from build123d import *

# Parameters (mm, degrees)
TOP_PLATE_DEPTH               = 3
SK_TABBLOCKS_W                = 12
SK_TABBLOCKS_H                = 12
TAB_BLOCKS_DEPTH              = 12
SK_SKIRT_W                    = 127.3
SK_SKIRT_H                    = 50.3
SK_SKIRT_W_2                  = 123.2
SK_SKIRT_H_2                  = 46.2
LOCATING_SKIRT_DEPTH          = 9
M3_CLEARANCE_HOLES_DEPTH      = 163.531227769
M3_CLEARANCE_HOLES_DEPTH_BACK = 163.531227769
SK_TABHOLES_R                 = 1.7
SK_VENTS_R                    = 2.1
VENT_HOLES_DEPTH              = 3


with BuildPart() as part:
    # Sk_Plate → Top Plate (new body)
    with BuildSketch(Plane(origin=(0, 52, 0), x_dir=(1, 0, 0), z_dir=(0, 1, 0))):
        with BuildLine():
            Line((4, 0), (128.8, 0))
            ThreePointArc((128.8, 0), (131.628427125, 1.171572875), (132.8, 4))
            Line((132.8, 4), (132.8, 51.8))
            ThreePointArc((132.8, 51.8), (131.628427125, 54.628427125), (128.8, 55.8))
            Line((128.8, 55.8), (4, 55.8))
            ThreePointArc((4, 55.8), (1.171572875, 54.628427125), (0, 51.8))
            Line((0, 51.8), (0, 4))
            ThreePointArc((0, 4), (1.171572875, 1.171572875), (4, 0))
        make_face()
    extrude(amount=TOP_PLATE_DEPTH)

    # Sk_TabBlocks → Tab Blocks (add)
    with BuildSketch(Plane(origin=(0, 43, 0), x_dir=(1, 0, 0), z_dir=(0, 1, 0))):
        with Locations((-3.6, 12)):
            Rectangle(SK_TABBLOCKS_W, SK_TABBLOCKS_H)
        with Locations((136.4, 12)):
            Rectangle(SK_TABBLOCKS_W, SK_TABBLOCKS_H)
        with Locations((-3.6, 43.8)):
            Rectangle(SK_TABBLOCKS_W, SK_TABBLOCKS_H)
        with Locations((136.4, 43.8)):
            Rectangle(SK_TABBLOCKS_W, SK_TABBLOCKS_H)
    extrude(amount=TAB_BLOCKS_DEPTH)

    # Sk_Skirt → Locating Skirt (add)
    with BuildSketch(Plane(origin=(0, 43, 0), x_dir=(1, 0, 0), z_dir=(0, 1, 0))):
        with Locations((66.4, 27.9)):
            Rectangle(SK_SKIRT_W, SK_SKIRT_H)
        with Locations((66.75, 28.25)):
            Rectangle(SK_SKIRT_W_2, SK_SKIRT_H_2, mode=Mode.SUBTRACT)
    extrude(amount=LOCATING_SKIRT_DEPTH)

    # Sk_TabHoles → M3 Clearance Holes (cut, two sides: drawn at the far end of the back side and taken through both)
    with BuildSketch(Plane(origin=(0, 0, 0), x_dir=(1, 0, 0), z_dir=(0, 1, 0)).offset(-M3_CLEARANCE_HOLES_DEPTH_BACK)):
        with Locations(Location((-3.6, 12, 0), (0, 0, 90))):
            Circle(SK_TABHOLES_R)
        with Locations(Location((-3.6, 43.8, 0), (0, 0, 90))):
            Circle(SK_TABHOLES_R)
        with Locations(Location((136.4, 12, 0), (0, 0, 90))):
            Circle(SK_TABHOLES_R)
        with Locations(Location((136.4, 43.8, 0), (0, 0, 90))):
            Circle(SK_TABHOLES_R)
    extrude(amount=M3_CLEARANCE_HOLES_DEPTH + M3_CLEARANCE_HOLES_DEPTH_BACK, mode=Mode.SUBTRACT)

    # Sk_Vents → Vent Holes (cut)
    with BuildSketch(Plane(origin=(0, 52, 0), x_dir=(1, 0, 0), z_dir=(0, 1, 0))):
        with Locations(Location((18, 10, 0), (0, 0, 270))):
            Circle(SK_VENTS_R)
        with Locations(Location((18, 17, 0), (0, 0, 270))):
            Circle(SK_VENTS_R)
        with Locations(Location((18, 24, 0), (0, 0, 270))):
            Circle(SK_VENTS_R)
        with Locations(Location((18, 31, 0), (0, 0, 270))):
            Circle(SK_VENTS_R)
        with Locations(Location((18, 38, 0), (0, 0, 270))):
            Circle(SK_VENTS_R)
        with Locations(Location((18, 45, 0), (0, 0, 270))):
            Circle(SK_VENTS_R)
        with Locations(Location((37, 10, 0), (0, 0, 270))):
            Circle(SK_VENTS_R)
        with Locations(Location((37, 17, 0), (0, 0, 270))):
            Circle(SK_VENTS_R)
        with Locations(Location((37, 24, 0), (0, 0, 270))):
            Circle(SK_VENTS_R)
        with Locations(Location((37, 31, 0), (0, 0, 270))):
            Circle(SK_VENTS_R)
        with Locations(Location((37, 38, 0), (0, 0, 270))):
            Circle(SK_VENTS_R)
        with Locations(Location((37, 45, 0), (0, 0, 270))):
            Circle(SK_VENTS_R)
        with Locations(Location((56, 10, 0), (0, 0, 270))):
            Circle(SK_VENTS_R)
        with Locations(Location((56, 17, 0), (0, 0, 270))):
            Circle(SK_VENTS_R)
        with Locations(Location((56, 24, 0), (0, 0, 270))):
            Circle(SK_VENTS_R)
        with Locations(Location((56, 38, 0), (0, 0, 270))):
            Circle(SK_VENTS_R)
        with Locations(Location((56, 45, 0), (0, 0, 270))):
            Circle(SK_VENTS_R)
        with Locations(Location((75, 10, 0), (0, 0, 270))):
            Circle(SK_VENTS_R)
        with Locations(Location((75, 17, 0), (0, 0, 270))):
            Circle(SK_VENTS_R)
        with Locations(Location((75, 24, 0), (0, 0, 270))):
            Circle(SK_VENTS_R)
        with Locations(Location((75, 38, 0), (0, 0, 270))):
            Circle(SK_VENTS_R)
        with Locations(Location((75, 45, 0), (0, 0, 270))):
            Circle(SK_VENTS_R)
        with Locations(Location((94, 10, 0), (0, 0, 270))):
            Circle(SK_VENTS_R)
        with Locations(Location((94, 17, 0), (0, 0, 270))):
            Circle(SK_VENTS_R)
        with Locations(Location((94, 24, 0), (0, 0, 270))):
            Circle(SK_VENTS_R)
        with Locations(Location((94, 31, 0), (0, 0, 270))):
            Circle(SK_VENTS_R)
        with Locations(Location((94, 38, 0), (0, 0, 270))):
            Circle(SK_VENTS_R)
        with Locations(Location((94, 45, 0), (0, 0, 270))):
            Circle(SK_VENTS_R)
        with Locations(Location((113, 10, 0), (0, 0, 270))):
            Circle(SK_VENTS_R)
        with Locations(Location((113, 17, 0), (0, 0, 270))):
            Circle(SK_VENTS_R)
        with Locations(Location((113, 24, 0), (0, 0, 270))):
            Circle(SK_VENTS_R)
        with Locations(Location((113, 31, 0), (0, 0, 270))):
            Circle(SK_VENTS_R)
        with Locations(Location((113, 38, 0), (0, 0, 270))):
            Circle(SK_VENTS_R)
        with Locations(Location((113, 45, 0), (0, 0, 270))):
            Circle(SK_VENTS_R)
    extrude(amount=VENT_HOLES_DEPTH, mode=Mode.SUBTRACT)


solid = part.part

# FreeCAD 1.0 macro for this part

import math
import FreeCAD as App
import Part
import Sketcher
Q = App.Units.Quantity

doc = App.newDocument("Part")
params = doc.addObject("Spreadsheet::Sheet", "Params")
for row, (alias, value) in enumerate([
    ("sketch1_radius", "4 mm"),
    ("sketch1_width", "124.8 mm"),
    ("sketch1_height", "47.8 mm"),
    ("pad1_length", "3 mm"),
    ("sketch2_width", "12 mm"),
    ("pad2_length", "12 mm"),
    ("sketch3_width", "127.3 mm"),
    ("sketch3_width2", "123.2 mm"),
    ("sketch3_height", "50.3 mm"),
    ("sketch3_height2", "46.2 mm"),
    ("pad3_length", "9 mm"),
    ("sketch4_diameter", "3.4 mm"),
    ("sketch5_diameter", "4.2 mm"),
    ("pocket2_length", "3 mm"),
], start=1):
    params.set(f"A{row}", alias)
    params.set(f"B{row}", "=" + value)
    params.setAlias(f"B{row}", alias)

body = doc.addObject("PartDesign::Body", "Body")

# Sketch on XZ plane
sketch1 = body.newObject("Sketcher::SketchObject", "Sketch")
sketch1.AttachmentSupport = (doc.getObject("XZ_Plane"), [""])
sketch1.MapMode = "FlatFace"
sketch1.AttachmentOffset = App.Placement(App.Vector(0, 0, -52), App.Rotation())
sketch1.addGeometry([
    Part.LineSegment(App.Vector(4, 0, 0), App.Vector(128.8, 0, 0)),  # 0
    Part.ArcOfCircle(Part.Circle(App.Vector(128.8, -4, 0), App.Vector(0, 0, 1), 4), math.radians(0), math.radians(90)),  # 1
    Part.LineSegment(App.Vector(132.8, -4, 0), App.Vector(132.8, -51.8, 0)),  # 2
    Part.ArcOfCircle(Part.Circle(App.Vector(128.8, -51.8, 0), App.Vector(0, 0, 1), 4), math.radians(-90), math.radians(0)),  # 3
    Part.LineSegment(App.Vector(128.8, -55.8, 0), App.Vector(4, -55.8, 0)),  # 4
    Part.ArcOfCircle(Part.Circle(App.Vector(4, -51.8, 0), App.Vector(0, 0, 1), 4), math.radians(180), math.radians(270)),  # 5
    Part.LineSegment(App.Vector(0, -51.8, 0), App.Vector(0, -4, 0)),  # 6
    Part.ArcOfCircle(Part.Circle(App.Vector(4, -4, 0), App.Vector(0, 0, 1), 4), math.radians(90), math.radians(180)),  # 7
], False)
sketch1.addConstraint([
    Sketcher.Constraint("Tangent", 0, 2, 1, 2),
    Sketcher.Constraint("Tangent", 1, 1, 2, 1),
    Sketcher.Constraint("Tangent", 2, 2, 3, 2),
    Sketcher.Constraint("Tangent", 3, 1, 4, 1),
    Sketcher.Constraint("Tangent", 4, 2, 5, 2),
    Sketcher.Constraint("Tangent", 5, 1, 6, 1),
    Sketcher.Constraint("Tangent", 6, 2, 7, 2),
    Sketcher.Constraint("Tangent", 7, 1, 0, 1),
    Sketcher.Constraint("Horizontal", 0),
    Sketcher.Constraint("Vertical", 2),
    Sketcher.Constraint("Horizontal", 4),
    Sketcher.Constraint("Vertical", 6),
    Sketcher.Constraint("Equal", 1, 3),
    Sketcher.Constraint("Equal", 3, 5),
    Sketcher.Constraint("Equal", 5, 7),
    Sketcher.Constraint("PointOnObject", 0, 2, -1),
    Sketcher.Constraint("PointOnObject", 5, 1, -2),
    Sketcher.Constraint("Radius", 1, Q("4 mm")),
    Sketcher.Constraint("DistanceX", 0, 1, 0, 2, Q("124.8 mm")),
    Sketcher.Constraint("DistanceY", 2, 2, 2, 1, Q("47.8 mm")),
])
sketch1.setExpression("Constraints[17]", "Params.sketch1_radius")
sketch1.setExpression("Constraints[18]", "Params.sketch1_width")
sketch1.setExpression("Constraints[19]", "Params.sketch1_height")
pad1 = body.newObject("PartDesign::Pad", "Pad")
pad1.Profile = sketch1
pad1.setExpression("Length", "Params.pad1_length")
pad1.Reversed = True

# Sketch on XZ plane
sketch2 = body.newObject("Sketcher::SketchObject", "Sketch001")
sketch2.AttachmentSupport = (doc.getObject("XZ_Plane"), [""])
sketch2.MapMode = "FlatFace"
sketch2.AttachmentOffset = App.Placement(App.Vector(0, 0, -43), App.Rotation())
sketch2.addGeometry([
    Part.LineSegment(App.Vector(-10, -18, 0), App.Vector(-10, -6, 0)),  # 0
    Part.LineSegment(App.Vector(-10, -6, 0), App.Vector(2, -6, 0)),  # 1
    Part.LineSegment(App.Vector(2, -6, 0), App.Vector(2, -18, 0)),  # 2
    Part.LineSegment(App.Vector(2, -18, 0), App.Vector(-10, -18, 0)),  # 3
    Part.LineSegment(App.Vector(130, -18, 0), App.Vector(130, -6, 0)),  # 4
    Part.LineSegment(App.Vector(130, -6, 0), App.Vector(142, -6, 0)),  # 5
    Part.LineSegment(App.Vector(142, -6, 0), App.Vector(142, -18, 0)),  # 6
    Part.LineSegment(App.Vector(142, -18, 0), App.Vector(130, -18, 0)),  # 7
    Part.LineSegment(App.Vector(-10, -50, 0), App.Vector(-10, -38, 0)),  # 8
    Part.LineSegment(App.Vector(-10, -38, 0), App.Vector(2, -38, 0)),  # 9
    Part.LineSegment(App.Vector(2, -38, 0), App.Vector(2, -50, 0)),  # 10
    Part.LineSegment(App.Vector(2, -50, 0), App.Vector(-10, -50, 0)),  # 11
    Part.LineSegment(App.Vector(130, -50, 0), App.Vector(130, -38, 0)),  # 12
    Part.LineSegment(App.Vector(130, -38, 0), App.Vector(142, -38, 0)),  # 13
    Part.LineSegment(App.Vector(142, -38, 0), App.Vector(142, -50, 0)),  # 14
    Part.LineSegment(App.Vector(142, -50, 0), App.Vector(130, -50, 0)),  # 15
], False)
sketch2.addConstraint([
    Sketcher.Constraint("Coincident", 0, 2, 1, 1),
    Sketcher.Constraint("Coincident", 1, 2, 2, 1),
    Sketcher.Constraint("Coincident", 2, 2, 3, 1),
    Sketcher.Constraint("Coincident", 3, 2, 0, 1),
    Sketcher.Constraint("Coincident", 4, 2, 5, 1),
    Sketcher.Constraint("Coincident", 5, 2, 6, 1),
    Sketcher.Constraint("Coincident", 6, 2, 7, 1),
    Sketcher.Constraint("Coincident", 7, 2, 4, 1),
    Sketcher.Constraint("Coincident", 8, 2, 9, 1),
    Sketcher.Constraint("Coincident", 9, 2, 10, 1),
    Sketcher.Constraint("Coincident", 10, 2, 11, 1),
    Sketcher.Constraint("Coincident", 11, 2, 8, 1),
    Sketcher.Constraint("Coincident", 12, 2, 13, 1),
    Sketcher.Constraint("Coincident", 13, 2, 14, 1),
    Sketcher.Constraint("Coincident", 14, 2, 15, 1),
    Sketcher.Constraint("Coincident", 15, 2, 12, 1),
    Sketcher.Constraint("Vertical", 0),
    Sketcher.Constraint("Horizontal", 1),
    Sketcher.Constraint("Vertical", 2),
    Sketcher.Constraint("Horizontal", 3),
    Sketcher.Constraint("Vertical", 4),
    Sketcher.Constraint("Horizontal", 5),
    Sketcher.Constraint("Vertical", 6),
    Sketcher.Constraint("Horizontal", 7),
    Sketcher.Constraint("Vertical", 8),
    Sketcher.Constraint("Horizontal", 9),
    Sketcher.Constraint("Vertical", 10),
    Sketcher.Constraint("Horizontal", 11),
    Sketcher.Constraint("Vertical", 12),
    Sketcher.Constraint("Horizontal", 13),
    Sketcher.Constraint("Vertical", 14),
    Sketcher.Constraint("Horizontal", 15),
    Sketcher.Constraint("Horizontal", 1, 2, 4, 2),
    Sketcher.Constraint("Horizontal", 3, 2, 6, 2),
    Sketcher.Constraint("Horizontal", 9, 2, 12, 2),
    Sketcher.Constraint("Horizontal", 11, 2, 14, 2),
    Sketcher.Constraint("Vertical", 3, 2, 8, 2),
    Sketcher.Constraint("Vertical", 2, 2, 9, 2),
    Sketcher.Constraint("Vertical", 7, 2, 12, 2),
    Sketcher.Constraint("Vertical", 6, 2, 13, 2),
    Sketcher.Constraint("Equal", 3, 5),
    Sketcher.Constraint("Equal", 15, 0),
    Sketcher.Constraint("Equal", 6, 8),
    Sketcher.Constraint("DistanceX", 1, 1, 1, 2, Q("12 mm")),
    Sketcher.Constraint("DistanceY", 0, 2, -1, 1, Q("6 mm")),
    Sketcher.Constraint("DistanceX", 1, 2, 4, 2, Q("128 mm")),
    Sketcher.Constraint("DistanceX", 0, 2, -1, 1, Q("9.6 mm")),
    Sketcher.Constraint("DistanceY", 8, 2, -1, 1, Q("37.8 mm")),
])
sketch2.setExpression("Constraints[43]", "Params.sketch2_width")
pad2 = body.newObject("PartDesign::Pad", "Pad001")
pad2.Profile = sketch2
pad2.setExpression("Length", "Params.pad2_length")
pad2.Reversed = True

# Sketch on XZ plane
sketch3 = body.newObject("Sketcher::SketchObject", "Sketch002")
sketch3.AttachmentSupport = (doc.getObject("XZ_Plane"), [""])
sketch3.MapMode = "FlatFace"
sketch3.AttachmentOffset = App.Placement(App.Vector(0, 0, -43), App.Rotation())
sketch3.addGeometry([
    Part.LineSegment(App.Vector(3, -53, 0), App.Vector(3, -3, 0)),  # 0
    Part.LineSegment(App.Vector(3, -3, 0), App.Vector(130, -3, 0)),  # 1
    Part.LineSegment(App.Vector(130, -3, 0), App.Vector(130, -53, 0)),  # 2
    Part.LineSegment(App.Vector(130, -53, 0), App.Vector(3, -53, 0)),  # 3
    Part.LineSegment(App.Vector(128, -5, 0), App.Vector(5, -5, 0)),  # 4
    Part.LineSegment(App.Vector(5, -5, 0), App.Vector(5, -51, 0)),  # 5
    Part.LineSegment(App.Vector(5, -51, 0), App.Vector(128, -51, 0)),  # 6
    Part.LineSegment(App.Vector(128, -51, 0), App.Vector(128, -5, 0)),  # 7
], False)
sketch3.addConstraint([
    Sketcher.Constraint("Coincident", 0, 2, 1, 1),
    Sketcher.Constraint("Coincident", 1, 2, 2, 1),
    Sketcher.Constraint("Coincident", 2, 2, 3, 1),
    Sketcher.Constraint("Coincident", 3, 2, 0, 1),
    Sketcher.Constraint("Coincident", 4, 2, 5, 1),
    Sketcher.Constraint("Coincident", 5, 2, 6, 1),
    Sketcher.Constraint("Coincident", 6, 2, 7, 1),
    Sketcher.Constraint("Coincident", 7, 2, 4, 1),
    Sketcher.Constraint("Vertical", 0),
    Sketcher.Constraint("Horizontal", 1),
    Sketcher.Constraint("Vertical", 2),
    Sketcher.Constraint("Horizontal", 3),
    Sketcher.Constraint("Horizontal", 4),
    Sketcher.Constraint("Vertical", 5),
    Sketcher.Constraint("Horizontal", 6),
    Sketcher.Constraint("Vertical", 7),
    Sketcher.Constraint("DistanceX", 1, 1, 1, 2, Q("127.3 mm")),
    Sketcher.Constraint("DistanceX", 4, 2, 4, 1, Q("123.2 mm")),
    Sketcher.Constraint("DistanceY", 0, 1, 0, 2, Q("50.3 mm")),
    Sketcher.Constraint("DistanceY", 5, 2, 5, 1, Q("46.2 mm")),
    Sketcher.Constraint("DistanceX", 0, 2, 4, 2, Q("2.4 mm")),
    Sketcher.Constraint("DistanceY", 4, 2, 0, 2, Q("2.4 mm")),
    Sketcher.Constraint("DistanceX", -1, 1, 0, 2, Q("2.75 mm")),
    Sketcher.Constraint("DistanceY", 0, 2, -1, 1, Q("2.75 mm")),
])
sketch3.setExpression("Constraints[16]", "Params.sketch3_width")
sketch3.setExpression("Constraints[17]", "Params.sketch3_width2")
sketch3.setExpression("Constraints[18]", "Params.sketch3_height")
sketch3.setExpression("Constraints[19]", "Params.sketch3_height2")
pad3 = body.newObject("PartDesign::Pad", "Pad002")
pad3.Profile = sketch3
pad3.setExpression("Length", "Params.pad3_length")
pad3.Reversed = True

# Sketch on XZ plane
sketch4 = body.newObject("Sketcher::SketchObject", "Sketch003")
sketch4.AttachmentSupport = (doc.getObject("XZ_Plane"), [""])
sketch4.MapMode = "FlatFace"
sketch4.addGeometry([
    Part.Circle(App.Vector(-3.6, -12, 0), App.Vector(0, 0, 1), 1.7),
    Part.Circle(App.Vector(-3.6, -43.8, 0), App.Vector(0, 0, 1), 1.7),
    Part.Circle(App.Vector(136.4, -12, 0), App.Vector(0, 0, 1), 1.7),
    Part.Circle(App.Vector(136.4, -43.8, 0), App.Vector(0, 0, 1), 1.7),
], False)
sketch4.addConstraint([
    Sketcher.Constraint("Equal", 0, 1),
    Sketcher.Constraint("Equal", 1, 2),
    Sketcher.Constraint("Equal", 2, 3),
    Sketcher.Constraint("Horizontal", 0, 3, 2, 3),
    Sketcher.Constraint("Horizontal", 1, 3, 3, 3),
    Sketcher.Constraint("Vertical", 0, 3, 1, 3),
    Sketcher.Constraint("Vertical", 2, 3, 3, 3),
    Sketcher.Constraint("Diameter", 0, Q("3.4 mm")),
    Sketcher.Constraint("DistanceY", 0, 3, -1, 1, Q("12 mm")),
    Sketcher.Constraint("DistanceX", 0, 3, 2, 3, Q("140 mm")),
    Sketcher.Constraint("DistanceX", 0, 3, -1, 1, Q("3.6 mm")),
    Sketcher.Constraint("DistanceY", 1, 3, -1, 1, Q("43.8 mm")),
])
sketch4.setExpression("Constraints[7]", "Params.sketch4_diameter")
pocket1 = body.newObject("PartDesign::Pocket", "Pocket")
pocket1.Profile = sketch4
pocket1.Type = "ThroughAll"
pocket1.Midplane = True

# Sketch on XZ plane
sketch5 = body.newObject("Sketcher::SketchObject", "Sketch004")
sketch5.AttachmentSupport = (doc.getObject("XZ_Plane"), [""])
sketch5.MapMode = "FlatFace"
sketch5.AttachmentOffset = App.Placement(App.Vector(0, 0, -52), App.Rotation())
sketch5.addGeometry([
    Part.Circle(App.Vector(18, -10, 0), App.Vector(0, 0, 1), 2.1),  # 0
    Part.Circle(App.Vector(18, -17, 0), App.Vector(0, 0, 1), 2.1),  # 1
    Part.Circle(App.Vector(18, -24, 0), App.Vector(0, 0, 1), 2.1),  # 2
    Part.Circle(App.Vector(18, -31, 0), App.Vector(0, 0, 1), 2.1),  # 3
    Part.Circle(App.Vector(18, -38, 0), App.Vector(0, 0, 1), 2.1),  # 4
    Part.Circle(App.Vector(18, -45, 0), App.Vector(0, 0, 1), 2.1),  # 5
    Part.Circle(App.Vector(37, -10, 0), App.Vector(0, 0, 1), 2.1),  # 6
    Part.Circle(App.Vector(37, -17, 0), App.Vector(0, 0, 1), 2.1),  # 7
    Part.Circle(App.Vector(37, -24, 0), App.Vector(0, 0, 1), 2.1),  # 8
    Part.Circle(App.Vector(37, -31, 0), App.Vector(0, 0, 1), 2.1),  # 9
    Part.Circle(App.Vector(37, -38, 0), App.Vector(0, 0, 1), 2.1),  # 10
    Part.Circle(App.Vector(37, -45, 0), App.Vector(0, 0, 1), 2.1),  # 11
    Part.Circle(App.Vector(56, -10, 0), App.Vector(0, 0, 1), 2.1),  # 12
    Part.Circle(App.Vector(56, -17, 0), App.Vector(0, 0, 1), 2.1),  # 13
    Part.Circle(App.Vector(56, -24, 0), App.Vector(0, 0, 1), 2.1),  # 14
    Part.Circle(App.Vector(56, -38, 0), App.Vector(0, 0, 1), 2.1),  # 15
    Part.Circle(App.Vector(56, -45, 0), App.Vector(0, 0, 1), 2.1),  # 16
    Part.Circle(App.Vector(75, -10, 0), App.Vector(0, 0, 1), 2.1),  # 17
    Part.Circle(App.Vector(75, -17, 0), App.Vector(0, 0, 1), 2.1),  # 18
    Part.Circle(App.Vector(75, -24, 0), App.Vector(0, 0, 1), 2.1),  # 19
    Part.Circle(App.Vector(75, -38, 0), App.Vector(0, 0, 1), 2.1),  # 20
    Part.Circle(App.Vector(75, -45, 0), App.Vector(0, 0, 1), 2.1),  # 21
    Part.Circle(App.Vector(94, -10, 0), App.Vector(0, 0, 1), 2.1),  # 22
    Part.Circle(App.Vector(94, -17, 0), App.Vector(0, 0, 1), 2.1),  # 23
    Part.Circle(App.Vector(94, -24, 0), App.Vector(0, 0, 1), 2.1),  # 24
    Part.Circle(App.Vector(94, -31, 0), App.Vector(0, 0, 1), 2.1),  # 25
    Part.Circle(App.Vector(94, -38, 0), App.Vector(0, 0, 1), 2.1),  # 26
    Part.Circle(App.Vector(94, -45, 0), App.Vector(0, 0, 1), 2.1),  # 27
    Part.Circle(App.Vector(113, -10, 0), App.Vector(0, 0, 1), 2.1),  # 28
    Part.Circle(App.Vector(113, -17, 0), App.Vector(0, 0, 1), 2.1),  # 29
    Part.Circle(App.Vector(113, -24, 0), App.Vector(0, 0, 1), 2.1),  # 30
    Part.Circle(App.Vector(113, -31, 0), App.Vector(0, 0, 1), 2.1),  # 31
    Part.Circle(App.Vector(113, -38, 0), App.Vector(0, 0, 1), 2.1),  # 32
    Part.Circle(App.Vector(113, -45, 0), App.Vector(0, 0, 1), 2.1),  # 33
], False)
sketch5.addConstraint([
    Sketcher.Constraint("Equal", 0, 1),
    Sketcher.Constraint("Equal", 1, 2),
    Sketcher.Constraint("Equal", 2, 3),
    Sketcher.Constraint("Equal", 3, 4),
    Sketcher.Constraint("Equal", 4, 5),
    Sketcher.Constraint("Equal", 5, 6),
    Sketcher.Constraint("Equal", 6, 7),
    Sketcher.Constraint("Equal", 7, 8),
    Sketcher.Constraint("Equal", 8, 9),
    Sketcher.Constraint("Equal", 9, 10),
    Sketcher.Constraint("Equal", 10, 11),
    Sketcher.Constraint("Equal", 11, 12),
    Sketcher.Constraint("Equal", 12, 13),
    Sketcher.Constraint("Equal", 13, 14),
    Sketcher.Constraint("Equal", 14, 15),
    Sketcher.Constraint("Equal", 15, 16),
    Sketcher.Constraint("Equal", 16, 17),
    Sketcher.Constraint("Equal", 17, 18),
    Sketcher.Constraint("Equal", 18, 19),
    Sketcher.Constraint("Equal", 19, 20),
    Sketcher.Constraint("Equal", 20, 21),
    Sketcher.Constraint("Equal", 21, 22),
    Sketcher.Constraint("Equal", 22, 23),
    Sketcher.Constraint("Equal", 23, 24),
    Sketcher.Constraint("Equal", 24, 25),
    Sketcher.Constraint("Equal", 25, 26),
    Sketcher.Constraint("Equal", 26, 27),
    Sketcher.Constraint("Equal", 27, 28),
    Sketcher.Constraint("Equal", 28, 29),
    Sketcher.Constraint("Equal", 29, 30),
    Sketcher.Constraint("Equal", 30, 31),
    Sketcher.Constraint("Equal", 31, 32),
    Sketcher.Constraint("Equal", 32, 33),
    Sketcher.Constraint("Horizontal", 0, 3, 6, 3),
    Sketcher.Constraint("Horizontal", 1, 3, 7, 3),
    Sketcher.Constraint("Horizontal", 2, 3, 8, 3),
    Sketcher.Constraint("Horizontal", 3, 3, 9, 3),
    Sketcher.Constraint("Horizontal", 4, 3, 10, 3),
    Sketcher.Constraint("Horizontal", 5, 3, 11, 3),
    Sketcher.Constraint("Horizontal", 6, 3, 12, 3),
    Sketcher.Constraint("Horizontal", 7, 3, 13, 3),
    Sketcher.Constraint("Horizontal", 8, 3, 14, 3),
    Sketcher.Constraint("Horizontal", 10, 3, 15, 3),
    Sketcher.Constraint("Horizontal", 11, 3, 16, 3),
    Sketcher.Constraint("Horizontal", 12, 3, 17, 3),
    Sketcher.Constraint("Horizontal", 13, 3, 18, 3),
    Sketcher.Constraint("Horizontal", 14, 3, 19, 3),
    Sketcher.Constraint("Horizontal", 15, 3, 20, 3),
    Sketcher.Constraint("Horizontal", 16, 3, 21, 3),
    Sketcher.Constraint("Horizontal", 17, 3, 22, 3),
    Sketcher.Constraint("Horizontal", 18, 3, 23, 3),
    Sketcher.Constraint("Horizontal", 19, 3, 24, 3),
    Sketcher.Constraint("Horizontal", 9, 3, 25, 3),
    Sketcher.Constraint("Horizontal", 20, 3, 26, 3),
    Sketcher.Constraint("Horizontal", 21, 3, 27, 3),
    Sketcher.Constraint("Horizontal", 22, 3, 28, 3),
    Sketcher.Constraint("Horizontal", 23, 3, 29, 3),
    Sketcher.Constraint("Horizontal", 24, 3, 30, 3),
    Sketcher.Constraint("Horizontal", 25, 3, 31, 3),
    Sketcher.Constraint("Horizontal", 26, 3, 32, 3),
    Sketcher.Constraint("Horizontal", 27, 3, 33, 3),
    Sketcher.Constraint("Vertical", 0, 3, 1, 3),
    Sketcher.Constraint("Vertical", 1, 3, 2, 3),
    Sketcher.Constraint("Vertical", 2, 3, 3, 3),
    Sketcher.Constraint("Vertical", 3, 3, 4, 3),
    Sketcher.Constraint("Vertical", 4, 3, 5, 3),
    Sketcher.Constraint("Vertical", 6, 3, 7, 3),
    Sketcher.Constraint("Vertical", 7, 3, 8, 3),
    Sketcher.Constraint("Vertical", 8, 3, 9, 3),
    Sketcher.Constraint("Vertical", 9, 3, 10, 3),
    Sketcher.Constraint("Vertical", 10, 3, 11, 3),
    Sketcher.Constraint("Vertical", 12, 3, 13, 3),
    Sketcher.Constraint("Vertical", 13, 3, 14, 3),
    Sketcher.Constraint("Vertical", 14, 3, 15, 3),
    Sketcher.Constraint("Vertical", 15, 3, 16, 3),
    Sketcher.Constraint("Vertical", 17, 3, 18, 3),
    Sketcher.Constraint("Vertical", 18, 3, 19, 3),
    Sketcher.Constraint("Vertical", 19, 3, 20, 3),
    Sketcher.Constraint("Vertical", 20, 3, 21, 3),
    Sketcher.Constraint("Vertical", 22, 3, 23, 3),
    Sketcher.Constraint("Vertical", 23, 3, 24, 3),
    Sketcher.Constraint("Vertical", 24, 3, 25, 3),
    Sketcher.Constraint("Vertical", 25, 3, 26, 3),
    Sketcher.Constraint("Vertical", 26, 3, 27, 3),
    Sketcher.Constraint("Vertical", 28, 3, 29, 3),
    Sketcher.Constraint("Vertical", 29, 3, 30, 3),
    Sketcher.Constraint("Vertical", 30, 3, 31, 3),
    Sketcher.Constraint("Vertical", 31, 3, 32, 3),
    Sketcher.Constraint("Vertical", 32, 3, 33, 3),
    Sketcher.Constraint("Diameter", 0, Q("4.2 mm")),
    Sketcher.Constraint("DistanceX", -1, 1, 0, 3, Q("18 mm")),
    Sketcher.Constraint("DistanceY", 0, 3, -1, 1, Q("10 mm")),
    Sketcher.Constraint("DistanceY", 1, 3, -1, 1, Q("17 mm")),
    Sketcher.Constraint("DistanceY", 2, 3, -1, 1, Q("24 mm")),
    Sketcher.Constraint("DistanceY", 3, 3, -1, 1, Q("31 mm")),
    Sketcher.Constraint("DistanceY", 4, 3, -1, 1, Q("38 mm")),
    Sketcher.Constraint("DistanceY", 5, 3, -1, 1, Q("45 mm")),
    Sketcher.Constraint("DistanceX", -1, 1, 6, 3, Q("37 mm")),
    Sketcher.Constraint("DistanceX", -1, 1, 12, 3, Q("56 mm")),
    Sketcher.Constraint("DistanceX", -1, 1, 17, 3, Q("75 mm")),
    Sketcher.Constraint("DistanceX", -1, 1, 22, 3, Q("94 mm")),
    Sketcher.Constraint("DistanceX", -1, 1, 28, 3, Q("113 mm")),
])
sketch5.setExpression("Constraints[89]", "Params.sketch5_diameter")
pocket2 = body.newObject("PartDesign::Pocket", "Pocket001")
pocket2.Profile = sketch5
pocket2.setExpression("Length", "Params.pocket2_length")

doc.recompute()
